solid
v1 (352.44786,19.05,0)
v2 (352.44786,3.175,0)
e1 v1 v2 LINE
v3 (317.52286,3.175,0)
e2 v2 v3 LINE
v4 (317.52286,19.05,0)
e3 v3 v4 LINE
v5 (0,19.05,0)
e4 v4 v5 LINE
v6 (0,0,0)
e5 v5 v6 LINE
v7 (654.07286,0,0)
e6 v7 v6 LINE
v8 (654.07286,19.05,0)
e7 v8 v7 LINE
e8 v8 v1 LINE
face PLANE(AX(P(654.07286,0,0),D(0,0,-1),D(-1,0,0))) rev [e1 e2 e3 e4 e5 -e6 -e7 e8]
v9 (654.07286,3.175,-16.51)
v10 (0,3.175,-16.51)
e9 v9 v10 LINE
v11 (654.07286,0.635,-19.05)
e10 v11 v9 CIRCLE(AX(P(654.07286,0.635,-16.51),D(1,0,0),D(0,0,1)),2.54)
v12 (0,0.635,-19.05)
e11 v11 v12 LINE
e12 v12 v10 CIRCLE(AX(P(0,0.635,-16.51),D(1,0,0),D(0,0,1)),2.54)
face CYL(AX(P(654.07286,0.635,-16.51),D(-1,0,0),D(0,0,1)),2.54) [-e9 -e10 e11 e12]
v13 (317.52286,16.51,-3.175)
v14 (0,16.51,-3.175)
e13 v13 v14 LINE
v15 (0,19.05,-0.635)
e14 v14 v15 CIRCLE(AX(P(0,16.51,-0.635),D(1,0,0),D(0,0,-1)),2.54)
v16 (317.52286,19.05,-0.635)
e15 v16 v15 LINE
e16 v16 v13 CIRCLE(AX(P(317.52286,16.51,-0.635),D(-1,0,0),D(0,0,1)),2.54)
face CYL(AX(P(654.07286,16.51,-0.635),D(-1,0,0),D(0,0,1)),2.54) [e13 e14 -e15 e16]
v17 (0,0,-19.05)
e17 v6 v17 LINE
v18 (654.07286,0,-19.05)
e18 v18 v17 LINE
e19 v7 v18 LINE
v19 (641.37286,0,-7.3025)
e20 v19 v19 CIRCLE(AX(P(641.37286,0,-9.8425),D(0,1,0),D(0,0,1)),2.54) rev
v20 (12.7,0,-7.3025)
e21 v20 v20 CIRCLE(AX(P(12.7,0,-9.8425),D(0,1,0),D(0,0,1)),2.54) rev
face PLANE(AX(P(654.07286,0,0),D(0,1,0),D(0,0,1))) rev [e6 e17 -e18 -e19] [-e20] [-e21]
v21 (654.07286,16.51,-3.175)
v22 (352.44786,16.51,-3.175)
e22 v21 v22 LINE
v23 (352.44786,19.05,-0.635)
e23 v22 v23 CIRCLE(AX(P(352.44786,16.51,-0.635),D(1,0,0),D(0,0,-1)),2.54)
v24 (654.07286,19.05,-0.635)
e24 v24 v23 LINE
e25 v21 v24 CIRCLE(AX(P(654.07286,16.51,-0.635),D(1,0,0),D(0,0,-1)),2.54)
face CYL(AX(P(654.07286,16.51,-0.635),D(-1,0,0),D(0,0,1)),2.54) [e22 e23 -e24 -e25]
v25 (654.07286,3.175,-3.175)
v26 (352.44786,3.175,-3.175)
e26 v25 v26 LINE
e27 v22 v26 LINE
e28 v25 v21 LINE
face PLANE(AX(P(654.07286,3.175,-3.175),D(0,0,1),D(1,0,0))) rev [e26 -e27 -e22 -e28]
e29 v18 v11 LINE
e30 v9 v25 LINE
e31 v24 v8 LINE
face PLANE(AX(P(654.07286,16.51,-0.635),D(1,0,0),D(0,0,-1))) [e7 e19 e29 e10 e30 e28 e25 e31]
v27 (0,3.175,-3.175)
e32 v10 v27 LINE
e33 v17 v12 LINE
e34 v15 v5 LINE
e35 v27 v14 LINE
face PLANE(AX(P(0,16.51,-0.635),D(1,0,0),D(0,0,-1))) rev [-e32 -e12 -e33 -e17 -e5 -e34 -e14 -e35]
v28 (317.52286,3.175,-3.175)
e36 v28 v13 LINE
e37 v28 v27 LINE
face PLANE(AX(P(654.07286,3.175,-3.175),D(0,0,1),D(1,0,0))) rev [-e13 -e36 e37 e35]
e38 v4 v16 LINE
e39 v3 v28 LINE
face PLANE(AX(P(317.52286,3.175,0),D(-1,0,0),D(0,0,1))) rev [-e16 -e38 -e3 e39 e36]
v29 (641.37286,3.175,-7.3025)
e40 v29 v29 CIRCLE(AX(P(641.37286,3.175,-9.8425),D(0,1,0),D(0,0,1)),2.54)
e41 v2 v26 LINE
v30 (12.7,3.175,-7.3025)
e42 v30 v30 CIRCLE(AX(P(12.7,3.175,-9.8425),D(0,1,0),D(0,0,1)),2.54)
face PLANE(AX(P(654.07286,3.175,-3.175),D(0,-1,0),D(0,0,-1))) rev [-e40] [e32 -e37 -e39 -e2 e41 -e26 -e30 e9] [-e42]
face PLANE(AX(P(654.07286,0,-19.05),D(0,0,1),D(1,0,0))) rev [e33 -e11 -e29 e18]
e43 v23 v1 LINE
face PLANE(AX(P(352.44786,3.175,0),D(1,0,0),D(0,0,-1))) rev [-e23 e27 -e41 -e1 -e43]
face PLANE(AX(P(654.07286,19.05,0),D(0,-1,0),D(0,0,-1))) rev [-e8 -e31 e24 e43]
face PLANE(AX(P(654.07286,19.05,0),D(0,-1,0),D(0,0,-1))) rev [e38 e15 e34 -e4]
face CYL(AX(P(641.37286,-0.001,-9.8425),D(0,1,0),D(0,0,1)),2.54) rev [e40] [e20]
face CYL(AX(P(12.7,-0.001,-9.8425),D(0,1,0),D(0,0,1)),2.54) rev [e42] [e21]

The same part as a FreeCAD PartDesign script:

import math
import FreeCAD as App
import Part
import Sketcher

V = App.Vector
Q = App.Units.Quantity

doc = App.newDocument("Part")
body = doc.addObject("PartDesign::Body", "Body")

# Sketch on YZ plane
sketch1 = body.newObject("Sketcher::SketchObject", "Sketch")
sketch1.AttachmentSupport = (doc.getObject("YZ_Plane"), [""])
sketch1.MapMode = "FlatFace"
sketch1.addGeometry(Part.LineSegment(V(3.175, -16.51, 0), V(3.175, -3.175, 0)), False)
sketch1.addGeometry(Part.LineSegment(V(3.175, -3.175, 0), V(16.51, -3.175, 0)), False)
sketch1.addGeometry(Part.ArcOfCircle(Part.Circle(V(16.51, -0.635, 0), V(0, 0, 1), 2.54), math.radians(-90), math.radians(0)), False)
sketch1.addGeometry(Part.LineSegment(V(19.05, -0.635, 0), V(19.05, 0, 0)), False)
sketch1.addGeometry(Part.LineSegment(V(19.05, 0, 0), V(0, 0, 0)), False)
sketch1.addGeometry(Part.LineSegment(V(0, 0, 0), V(0, -19.05, 0)), False)
sketch1.addGeometry(Part.LineSegment(V(0, -19.05, 0), V(0.635, -19.05, 0)), False)
sketch1.addGeometry(Part.ArcOfCircle(Part.Circle(V(0.635, -16.51, 0), V(0, 0, 1), 2.54), math.radians(-90), math.radians(0)), False)
sketch1.addConstraint(Sketcher.Constraint("Coincident", 0, 2, 1, 1))
sketch1.addConstraint(Sketcher.Constraint("Tangent", 1, 2, 2, 1))
sketch1.addConstraint(Sketcher.Constraint("Tangent", 2, 2, 3, 1))
sketch1.addConstraint(Sketcher.Constraint("Coincident", 3, 2, 4, 1))
sketch1.addConstraint(Sketcher.Constraint("Coincident", 4, 2, 5, 1))
sketch1.addConstraint(Sketcher.Constraint("Coincident", 5, 2, 6, 1))
sketch1.addConstraint(Sketcher.Constraint("Tangent", 6, 2, 7, 1))
sketch1.addConstraint(Sketcher.Constraint("Tangent", 7, 2, 0, 1))
sketch1.addConstraint(Sketcher.Constraint("Vertical", 0))
sketch1.addConstraint(Sketcher.Constraint("Horizontal", 1))
sketch1.addConstraint(Sketcher.Constraint("Vertical", 3))
sketch1.addConstraint(Sketcher.Constraint("Horizontal", 4))
sketch1.addConstraint(Sketcher.Constraint("Vertical", 5))
sketch1.addConstraint(Sketcher.Constraint("Horizontal", 6))
sketch1.addConstraint(Sketcher.Constraint("Coincident", 4, 2, -1, 1))
sketch1.addConstraint(Sketcher.Constraint("Equal", 2, 7))
sketch1.addConstraint(Sketcher.Constraint("Equal", 1, 0))
sketch1.addConstraint(Sketcher.Constraint("Equal", 6, 3))
sketch1.addConstraint(Sketcher.Constraint("Radius", 2, Q("0.1 in")))
sketch1.addConstraint(Sketcher.Constraint("DistanceX", 4, 2, 4, 1, Q("0.75 in")))
sketch1.addConstraint(Sketcher.Constraint("DistanceX", 1, 1, 1, 2, Q("0.525 in")))
pad1 = body.newObject("PartDesign::Pad", "Pad")
pad1.Profile = sketch1
pad1.Length = Q("25.7509 in")

# Sketch on XZ plane
sketch2 = body.newObject("Sketcher::SketchObject", "Sketch001")
sketch2.AttachmentSupport = (doc.getObject("XZ_Plane"), [""])
sketch2.MapMode = "FlatFace"
sketch2.AttachmentOffset = App.Placement(V(0, 0, -0.125 * 25.4), App.Rotation())
sketch2.addGeometry(Part.Circle(V(641.37286, -9.8425, 0), V(0, 0, 1), 2.54), False)
sketch2.addConstraint(Sketcher.Constraint("Diameter", 0, Q("0.2 in")))
sketch2.addConstraint(Sketcher.Constraint("DistanceX", -1, 1, 0, 3, Q("25.2509 in")))
sketch2.addConstraint(Sketcher.Constraint("DistanceY", 0, 3, -1, 1, Q("0.3875 in")))
pocket1 = body.newObject("PartDesign::Pocket", "Pocket")
pocket1.Profile = sketch2
pocket1.Type = "UpToFirst"
pocket1.Reversed = True

# Sketch on XZ plane
sketch3 = body.newObject("Sketcher::SketchObject", "Sketch002")
sketch3.AttachmentSupport = (doc.getObject("XZ_Plane"), [""])
sketch3.MapMode = "FlatFace"
sketch3.AttachmentOffset = App.Placement(V(0, 0, -0.125 * 25.4), App.Rotation())
sketch3.addGeometry(Part.Circle(V(12.7, -9.8425, 0), V(0, 0, 1), 2.54), False)
sketch3.addConstraint(Sketcher.Constraint("Diameter", 0, Q("0.2 in")))
sketch3.addConstraint(Sketcher.Constraint("DistanceX", -1, 1, 0, 3, Q("0.5 in")))
sketch3.addConstraint(Sketcher.Constraint("DistanceY", 0, 3, -1, 1, Q("0.3875 in")))
pocket2 = body.newObject("PartDesign::Pocket", "Pocket001")
pocket2.Profile = sketch3
pocket2.Type = "UpToFirst"
pocket2.Reversed = True

# Sketch on XY plane
sketch4 = body.newObject("Sketcher::SketchObject", "Sketch003")
sketch4.AttachmentSupport = (doc.getObject("XY_Plane"), [""])
sketch4.MapMode = "FlatFace"
sketch4.AttachmentOffset = App.Placement(V(0, 0, -0.125 * 25.4), App.Rotation())
sketch4.addGeometry(Part.LineSegment(V(352.44786, 52.517597, 0), V(352.44786, 3.175, 0)), False)
sketch4.addGeometry(Part.LineSegment(V(352.44786, 3.175, 0), V(317.52286, 3.175, 0)), False)
sketch4.addGeometry(Part.LineSegment(V(317.52286, 3.175, 0), V(317.52286, 52.517597, 0)), False)
sketch4.addGeometry(Part.LineSegment(V(317.52286, 52.517597, 0), V(352.44786, 52.517597, 0)), False)
sketch4.addConstraint(Sketcher.Constraint("Coincident", 0, 2, 1, 1))
sketch4.addConstraint(Sketcher.Constraint("Coincident", 1, 2, 2, 1))
sketch4.addConstraint(Sketcher.Constraint("Coincident", 2, 2, 3, 1))
sketch4.addConstraint(Sketcher.Constraint("Coincident", 3, 2, 0, 1))
sketch4.addConstraint(Sketcher.Constraint("Vertical", 0))
sketch4.addConstraint(Sketcher.Constraint("Horizontal", 1))
sketch4.addConstraint(Sketcher.Constraint("Vertical", 2))
sketch4.addConstraint(Sketcher.Constraint("Horizontal", 3))
sketch4.addConstraint(Sketcher.Constraint("DistanceX", 1, 2, 1, 1, Q("1.375 in")))
sketch4.addConstraint(Sketcher.Constraint("DistanceY", -1, 1, 0, 2, Q("0.125 in")))
sketch4.addConstraint(Sketcher.Constraint("DistanceX", -1, 1, 0, 2, Q("13.8759 in")))
sketch4.addConstraint(Sketcher.Constraint("DistanceY", 0, 2, 0, 1, 49.342597))
pocket3 = body.newObject("PartDesign::Pocket", "Pocket002")
pocket3.Profile = sketch4
pocket3.Type = "ThroughAll"
pocket3.Reversed = True

doc.recompute()
